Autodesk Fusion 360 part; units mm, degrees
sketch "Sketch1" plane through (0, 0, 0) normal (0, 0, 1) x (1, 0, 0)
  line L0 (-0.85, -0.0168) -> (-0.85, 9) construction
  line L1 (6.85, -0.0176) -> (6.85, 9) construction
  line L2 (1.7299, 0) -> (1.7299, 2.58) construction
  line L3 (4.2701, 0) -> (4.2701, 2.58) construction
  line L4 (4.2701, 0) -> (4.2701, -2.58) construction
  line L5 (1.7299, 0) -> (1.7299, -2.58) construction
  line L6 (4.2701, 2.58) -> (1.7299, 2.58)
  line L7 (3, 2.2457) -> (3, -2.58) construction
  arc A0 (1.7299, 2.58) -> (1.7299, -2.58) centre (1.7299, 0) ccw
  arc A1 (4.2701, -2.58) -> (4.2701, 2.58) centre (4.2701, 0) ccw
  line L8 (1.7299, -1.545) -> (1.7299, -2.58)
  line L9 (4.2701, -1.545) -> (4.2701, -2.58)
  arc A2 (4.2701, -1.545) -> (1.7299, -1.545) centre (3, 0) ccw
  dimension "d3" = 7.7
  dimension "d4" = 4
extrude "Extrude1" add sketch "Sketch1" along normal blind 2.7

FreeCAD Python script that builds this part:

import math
import FreeCAD as App
import Part
import Sketcher

doc = App.newDocument("Part")
body = doc.addObject("PartDesign::Body", "Body")

# Sketch on XY plane
sketch1 = body.newObject("Sketcher::SketchObject", "Sketch")
sketch1.AttachmentSupport = (doc.getObject("XY_Plane"), [""])
sketch1.MapMode = "FlatFace"
sketch1.addGeometry(Part.ArcOfCircle(Part.Circle(App.Vector(4.3, 0, 0), App.Vector(0, 0, 1), 2.6), math.radians(-90), math.radians(90)), False)
sketch1.addGeometry(Part.LineSegment(App.Vector(4.3, 2.6, 0), App.Vector(1.7, 2.6, 0)), False)
sketch1.addGeometry(Part.ArcOfCircle(Part.Circle(App.Vector(1.7, 0, 0), App.Vector(0, 0, 1), 2.6), math.radians(90), math.radians(270)), False)
sketch1.addGeometry(Part.LineSegment(App.Vector(1.7, -2.6, 0), App.Vector(1.7, -1.5, 0)), False)
sketch1.addGeometry(Part.ArcOfCircle(Part.Circle(App.Vector(3, 0, 0), App.Vector(0, 0, 1), 2), math.radians(-51), math.radians(231)), False)
sketch1.addGeometry(Part.LineSegment(App.Vector(4.3, -1.5, 0), App.Vector(4.3, -2.6, 0)), False)
sketch1.addConstraint(Sketcher.Constraint("Tangent", 0, 2, 1, 1))
sketch1.addConstraint(Sketcher.Constraint("Tangent", 1, 2, 2, 1))
sketch1.addConstraint(Sketcher.Constraint("Coincident", 2, 2, 3, 1))
sketch1.addConstraint(Sketcher.Constraint("Coincident", 3, 2, 4, 2))
sketch1.addConstraint(Sketcher.Constraint("Coincident", 4, 1, 5, 1))
sketch1.addConstraint(Sketcher.Constraint("Coincident", 5, 2, 0, 1))
sketch1.addConstraint(Sketcher.Constraint("Horizontal", 1))
sketch1.addConstraint(Sketcher.Constraint("Vertical", 3))
sketch1.addConstraint(Sketcher.Constraint("Vertical", 5))
sketch1.addConstraint(Sketcher.Constraint("Equal", 0, 2))
sketch1.addConstraint(Sketcher.Constraint("Symmetric", 1, 2, 2, 2, -1))
sketch1.addConstraint(Sketcher.Constraint("PointOnObject", 4, 3, -1))
sketch1.addConstraint(Sketcher.Constraint("Horizontal", 3, 2, 4, 1))
sketch1.addConstraint(Sketcher.Constraint("Vertical", 0, 2, 4, 1))
sketch1.addConstraint(Sketcher.Constraint("Radius", 4, 2.0))
sketch1.addConstraint(Sketcher.Constraint("Radius", 0, 2.58))
sketch1.addConstraint(Sketcher.Constraint("DistanceX", -1, 1, 4, 3, 3.0))
sketch1.addConstraint(Sketcher.Constraint("DistanceY", 3, 1, 3, 2, 1.035))
pad1 = body.newObject("PartDesign::Pad", "Pad")
pad1.Profile = sketch1
pad1.Length = 2.7

doc.recompute()
